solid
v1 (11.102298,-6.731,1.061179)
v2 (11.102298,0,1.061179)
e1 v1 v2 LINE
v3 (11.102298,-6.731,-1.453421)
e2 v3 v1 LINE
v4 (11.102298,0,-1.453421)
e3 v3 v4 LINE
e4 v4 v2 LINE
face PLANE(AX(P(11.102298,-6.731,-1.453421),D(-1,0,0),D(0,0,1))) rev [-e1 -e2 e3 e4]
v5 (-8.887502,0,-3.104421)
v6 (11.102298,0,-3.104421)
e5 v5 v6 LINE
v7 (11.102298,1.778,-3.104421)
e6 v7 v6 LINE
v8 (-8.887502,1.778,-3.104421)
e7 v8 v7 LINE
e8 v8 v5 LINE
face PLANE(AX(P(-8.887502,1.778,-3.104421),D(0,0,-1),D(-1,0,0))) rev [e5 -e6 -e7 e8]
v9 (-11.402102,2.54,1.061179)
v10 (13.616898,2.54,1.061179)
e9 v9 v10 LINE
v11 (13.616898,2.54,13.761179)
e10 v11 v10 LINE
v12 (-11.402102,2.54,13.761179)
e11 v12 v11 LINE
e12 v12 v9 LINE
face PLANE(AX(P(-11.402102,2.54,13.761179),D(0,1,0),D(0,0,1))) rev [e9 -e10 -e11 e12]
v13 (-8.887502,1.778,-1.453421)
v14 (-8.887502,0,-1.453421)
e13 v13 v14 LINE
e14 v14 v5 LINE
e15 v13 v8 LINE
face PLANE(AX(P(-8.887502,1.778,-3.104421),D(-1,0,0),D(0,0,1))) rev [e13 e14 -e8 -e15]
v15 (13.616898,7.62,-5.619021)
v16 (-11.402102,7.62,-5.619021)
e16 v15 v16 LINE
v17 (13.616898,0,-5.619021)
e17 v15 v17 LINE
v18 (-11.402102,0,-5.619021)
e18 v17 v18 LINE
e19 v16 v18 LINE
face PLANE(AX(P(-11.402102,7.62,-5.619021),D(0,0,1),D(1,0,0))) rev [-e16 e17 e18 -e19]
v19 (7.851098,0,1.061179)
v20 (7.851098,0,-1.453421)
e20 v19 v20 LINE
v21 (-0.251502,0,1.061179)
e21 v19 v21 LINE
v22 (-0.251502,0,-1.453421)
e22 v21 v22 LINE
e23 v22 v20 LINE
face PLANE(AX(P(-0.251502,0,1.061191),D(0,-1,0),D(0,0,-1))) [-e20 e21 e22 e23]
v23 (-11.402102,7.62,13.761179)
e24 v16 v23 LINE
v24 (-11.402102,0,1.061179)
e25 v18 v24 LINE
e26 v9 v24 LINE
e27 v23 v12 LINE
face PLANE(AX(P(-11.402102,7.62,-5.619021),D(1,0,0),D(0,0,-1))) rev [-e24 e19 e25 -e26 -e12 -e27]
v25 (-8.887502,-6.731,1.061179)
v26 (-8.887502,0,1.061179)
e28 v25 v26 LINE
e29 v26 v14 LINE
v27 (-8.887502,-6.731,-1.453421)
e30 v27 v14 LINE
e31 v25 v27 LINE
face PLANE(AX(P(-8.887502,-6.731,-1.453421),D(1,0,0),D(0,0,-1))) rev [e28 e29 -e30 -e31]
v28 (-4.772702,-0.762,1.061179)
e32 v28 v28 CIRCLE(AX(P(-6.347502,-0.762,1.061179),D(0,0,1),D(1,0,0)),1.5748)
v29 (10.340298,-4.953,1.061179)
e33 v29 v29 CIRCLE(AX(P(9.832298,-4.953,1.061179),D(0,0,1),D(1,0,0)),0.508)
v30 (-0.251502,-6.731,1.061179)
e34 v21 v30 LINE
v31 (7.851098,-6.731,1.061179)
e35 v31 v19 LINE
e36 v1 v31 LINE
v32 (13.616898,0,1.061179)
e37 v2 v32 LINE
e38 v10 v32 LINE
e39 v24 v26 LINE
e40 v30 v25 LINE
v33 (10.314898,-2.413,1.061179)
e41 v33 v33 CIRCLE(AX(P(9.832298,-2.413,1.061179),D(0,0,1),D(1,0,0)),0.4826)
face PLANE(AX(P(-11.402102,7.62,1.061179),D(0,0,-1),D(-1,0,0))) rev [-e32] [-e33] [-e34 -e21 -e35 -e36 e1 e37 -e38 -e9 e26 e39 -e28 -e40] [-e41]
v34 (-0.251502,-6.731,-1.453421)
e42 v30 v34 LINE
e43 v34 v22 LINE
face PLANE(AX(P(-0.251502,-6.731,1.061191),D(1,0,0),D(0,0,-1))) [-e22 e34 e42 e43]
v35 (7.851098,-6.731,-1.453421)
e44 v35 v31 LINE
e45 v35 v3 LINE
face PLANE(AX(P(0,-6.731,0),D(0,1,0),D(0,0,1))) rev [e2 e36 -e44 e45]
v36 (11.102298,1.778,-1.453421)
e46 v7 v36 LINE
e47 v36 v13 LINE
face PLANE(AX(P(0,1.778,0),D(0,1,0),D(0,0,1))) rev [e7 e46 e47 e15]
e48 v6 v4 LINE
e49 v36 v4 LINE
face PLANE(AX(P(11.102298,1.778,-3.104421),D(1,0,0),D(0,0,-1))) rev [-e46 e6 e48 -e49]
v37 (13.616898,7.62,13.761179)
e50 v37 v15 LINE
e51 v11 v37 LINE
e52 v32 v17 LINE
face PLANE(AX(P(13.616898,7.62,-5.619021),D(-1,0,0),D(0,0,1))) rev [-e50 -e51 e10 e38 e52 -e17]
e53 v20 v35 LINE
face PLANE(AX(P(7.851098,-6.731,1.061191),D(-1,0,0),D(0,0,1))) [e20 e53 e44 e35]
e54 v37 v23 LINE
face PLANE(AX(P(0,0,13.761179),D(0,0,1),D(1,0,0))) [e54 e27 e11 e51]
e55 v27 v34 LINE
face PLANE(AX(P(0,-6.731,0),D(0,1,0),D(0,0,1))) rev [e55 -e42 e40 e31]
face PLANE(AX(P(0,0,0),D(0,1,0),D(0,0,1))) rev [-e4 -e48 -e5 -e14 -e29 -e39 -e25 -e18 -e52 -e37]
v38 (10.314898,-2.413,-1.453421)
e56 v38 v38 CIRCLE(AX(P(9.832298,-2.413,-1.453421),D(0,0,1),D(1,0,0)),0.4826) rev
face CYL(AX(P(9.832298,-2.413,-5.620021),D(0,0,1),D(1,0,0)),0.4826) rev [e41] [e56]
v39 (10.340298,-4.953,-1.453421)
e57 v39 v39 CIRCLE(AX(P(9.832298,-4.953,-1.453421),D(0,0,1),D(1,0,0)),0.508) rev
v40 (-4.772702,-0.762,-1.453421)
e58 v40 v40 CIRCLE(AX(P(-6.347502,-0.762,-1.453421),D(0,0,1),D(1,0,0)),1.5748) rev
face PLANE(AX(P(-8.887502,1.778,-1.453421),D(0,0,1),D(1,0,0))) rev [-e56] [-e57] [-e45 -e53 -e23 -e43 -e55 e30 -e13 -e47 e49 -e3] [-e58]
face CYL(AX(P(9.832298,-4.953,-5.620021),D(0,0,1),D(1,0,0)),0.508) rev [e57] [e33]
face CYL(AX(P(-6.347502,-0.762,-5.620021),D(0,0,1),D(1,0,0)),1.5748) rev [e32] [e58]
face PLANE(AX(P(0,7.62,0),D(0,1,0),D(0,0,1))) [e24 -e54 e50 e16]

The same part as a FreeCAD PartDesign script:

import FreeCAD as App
import Part
import Sketcher
Q = App.Units.Quantity


def add_polygon(sketch, points):
    """Adds a closed chain of lines whose ends are joined by coincident constraints."""
    first, n = sketch.GeometryCount, len(points)
    for a, b in zip(points, points[1:] + points[:1]):
        sketch.addGeometry(Part.LineSegment(App.Vector(*a, 0), App.Vector(*b, 0)), False)
    for i in range(n):
        sketch.addConstraint(Sketcher.Constraint("Coincident", first + i, 2, first + (i + 1) % n, 1))

doc = App.newDocument("Part")
params = doc.addObject("Spreadsheet::Sheet", "Params")
for row, (alias, value) in enumerate([
    ("sketch1_width", "0.985 in"),
    ("sketch1_height", "0.263 in"),
    ("pad1_length", "0.3 in"),
    ("sketch2_width", "0.787 in"),
    ("sketch2_height", "0.065 in"),
    ("pocket1_length", "0.07 in"),
    ("sketch3_width", "0.787 in"),
    ("sketch3_height", "0.099 in"),
    ("pad2_length", "0.265 in"),
    ("sketch4_width", "0.319 in"),
    ("sketch4_height", "0.265 in"),
    ("sketch5_width", "0.319 in"),
    ("sketch5_height", "0.265 in"),
    ("pocket3_length", "17.973785 mm"),
    ("sketch6_diameter", "0.124 in"),
    ("sketch7_diameter", "0.038 in"),
    ("sketch8_diameter", "0.04 in"),
    ("sketch9_height", "0.2 in"),
    ("sketch9_width", "0.985 in"),
    ("pad3_length", "0.5 in"),
], start=1):
    params.set(f"A{row}", alias)
    params.set(f"B{row}", "=" + value)
    params.setAlias(f"B{row}", alias)

body = doc.addObject("PartDesign::Body", "Body")

sketch1 = body.newObject("Sketcher::SketchObject", "Sketch")
sketch1.AttachmentSupport = (doc.getObject("XZ_Plane"), [""])
sketch1.MapMode = "FlatFace"
add_polygon(sketch1, [(-11, -6), (-11, 1), (14, 1), (14, -6)])
sketch1.addConstraint(Sketcher.Constraint("Vertical", 0))
sketch1.addConstraint(Sketcher.Constraint("Horizontal", 1))
sketch1.addConstraint(Sketcher.Constraint("Vertical", 2))
sketch1.addConstraint(Sketcher.Constraint("Horizontal", 3))
sketch1.addConstraint(Sketcher.Constraint("DistanceX", 1, 1, 1, 2, Q("0.985 in")))
sketch1.addConstraint(Sketcher.Constraint("DistanceY", 0, 1, 0, 2, Q("0.263 in")))
sketch1.addConstraint(Sketcher.Constraint("DistanceX", 0, 2, -1, 1, 11.402102))
sketch1.addConstraint(Sketcher.Constraint("DistanceY", -1, 1, 0, 2, 1.061179))
sketch1.setExpression("Constraints[8]", "Params.sketch1_width")
sketch1.setExpression("Constraints[9]", "Params.sketch1_height")
pad1 = body.newObject("PartDesign::Pad", "Pad")
pad1.Profile = sketch1
pad1.setExpression("Length", "Params.pad1_length")
pad1.Reversed = True

sketch2 = body.newObject("Sketcher::SketchObject", "Sketch001")
sketch2.AttachmentSupport = (doc.getObject("XZ_Plane"), [""])
sketch2.MapMode = "FlatFace"
add_polygon(sketch2, [(-8.9, -1.5), (-8.9, -3.1), (11.1, -3.1), (11.1, -1.5)])
sketch2.addConstraint(Sketcher.Constraint("Vertical", 0))
sketch2.addConstraint(Sketcher.Constraint("Horizontal", 1))
sketch2.addConstraint(Sketcher.Constraint("Vertical", 2))
sketch2.addConstraint(Sketcher.Constraint("Horizontal", 3))
sketch2.addConstraint(Sketcher.Constraint("DistanceX", 1, 1, 1, 2, Q("0.787 in")))
sketch2.addConstraint(Sketcher.Constraint("DistanceY", 0, 2, 0, 1, Q("0.065 in")))
sketch2.addConstraint(Sketcher.Constraint("DistanceX", 0, 2, -1, 1, 8.887502))
sketch2.addConstraint(Sketcher.Constraint("DistanceY", 0, 2, -1, 1, 3.104421))
sketch2.setExpression("Constraints[8]", "Params.sketch2_width")
sketch2.setExpression("Constraints[9]", "Params.sketch2_height")
pocket1 = body.newObject("PartDesign::Pocket", "Pocket")
pocket1.Profile = sketch2
pocket1.setExpression("Length", "Params.pocket1_length")

sketch3 = body.newObject("Sketcher::SketchObject", "Sketch002")
sketch3.AttachmentSupport = (doc.getObject("XZ_Plane"), [""])
sketch3.MapMode = "FlatFace"
add_polygon(sketch3, [(-8.9, 1.1), (-8.9, -1.5), (11.1, -1.5), (11.1, 1.1)])
sketch3.addConstraint(Sketcher.Constraint("Vertical", 0))
sketch3.addConstraint(Sketcher.Constraint("Horizontal", 1))
sketch3.addConstraint(Sketcher.Constraint("Vertical", 2))
sketch3.addConstraint(Sketcher.Constraint("Horizontal", 3))
sketch3.addConstraint(Sketcher.Constraint("DistanceX", 1, 1, 1, 2, Q("0.787 in")))
sketch3.addConstraint(Sketcher.Constraint("DistanceY", 0, 2, 0, 1, Q("0.099 in")))
sketch3.addConstraint(Sketcher.Constraint("DistanceX", 0, 2, -1, 1, 8.887502))
sketch3.addConstraint(Sketcher.Constraint("DistanceY", 0, 2, -1, 1, 1.453421))
sketch3.setExpression("Constraints[8]", "Params.sketch3_width")
sketch3.setExpression("Constraints[9]", "Params.sketch3_height")
pad2 = body.newObject("PartDesign::Pad", "Pad001")
pad2.Profile = sketch3
pad2.setExpression("Length", "Params.pad2_length")

sketch4 = body.newObject("Sketcher::SketchObject", "Sketch003")
sketch4.AttachmentSupport = (doc.getObject("XY_Plane"), [""])
sketch4.MapMode = "FlatFace"
sketch4.AttachmentOffset = App.Placement(App.Vector(0, 0, 1.061179), App.Rotation())
add_polygon(sketch4, [(0, 0), (0, -7), (8, -7), (8, 0)])
sketch4.addConstraint(Sketcher.Constraint("Vertical", 0))
sketch4.addConstraint(Sketcher.Constraint("Horizontal", 1))
sketch4.addConstraint(Sketcher.Constraint("Vertical", 2))
sketch4.addConstraint(Sketcher.Constraint("Horizontal", 3))
sketch4.addConstraint(Sketcher.Constraint("PointOnObject", 2, 2, -1))
sketch4.addConstraint(Sketcher.Constraint("DistanceX", 1, 1, 1, 2, Q("0.319 in")))
sketch4.addConstraint(Sketcher.Constraint("DistanceY", 0, 2, 0, 1, Q("0.265 in")))
sketch4.addConstraint(Sketcher.Constraint("DistanceX", 0, 2, -1, 1, 0.251502))
sketch4.setExpression("Constraints[9]", "Params.sketch4_width")
sketch4.setExpression("Constraints[10]", "Params.sketch4_height")
pocket2 = body.newObject("PartDesign::Pocket", "Pocket001")
pocket2.Profile = sketch4
pocket2.Type = "UpToFirst"

sketch5 = body.newObject("Sketcher::SketchObject", "Sketch004")
sketch5.AttachmentSupport = (doc.getObject("XY_Plane"), [""])
sketch5.MapMode = "FlatFace"
sketch5.AttachmentOffset = App.Placement(App.Vector(0, 0, 1.061179), App.Rotation())
add_polygon(sketch5, [(0, 0), (0, -7), (8, -7), (8, 0)])
sketch5.addConstraint(Sketcher.Constraint("Vertical", 0))
sketch5.addConstraint(Sketcher.Constraint("Horizontal", 1))
sketch5.addConstraint(Sketcher.Constraint("Vertical", 2))
sketch5.addConstraint(Sketcher.Constraint("Horizontal", 3))
sketch5.addConstraint(Sketcher.Constraint("PointOnObject", 2, 2, -1))
sketch5.addConstraint(Sketcher.Constraint("DistanceX", 1, 1, 1, 2, Q("0.319 in")))
sketch5.addConstraint(Sketcher.Constraint("DistanceY", 0, 2, 0, 1, Q("0.265 in")))
sketch5.addConstraint(Sketcher.Constraint("DistanceX", 0, 2, -1, 1, 0.251502))
sketch5.setExpression("Constraints[9]", "Params.sketch5_width")
sketch5.setExpression("Constraints[10]", "Params.sketch5_height")
pocket3 = body.newObject("PartDesign::Pocket", "Pocket002")
pocket3.Profile = sketch5
pocket3.setExpression("Length", "Params.pocket3_length")
pocket3.Reversed = True

sketch6 = body.newObject("Sketcher::SketchObject", "Sketch005")
sketch6.AttachmentSupport = (doc.getObject("XY_Plane"), [""])
sketch6.MapMode = "FlatFace"
sketch6.AttachmentOffset = App.Placement(App.Vector(0, 0, 1.061179), App.Rotation())
sketch6.addGeometry(Part.Circle(App.Vector(-6.3, -0.8, 0), App.Vector(0, 0, 1), 1.6), False)
sketch6.addConstraint(Sketcher.Constraint("Diameter", 0, Q("0.124 in")))
sketch6.addConstraint(Sketcher.Constraint("DistanceY", 0, 3, -1, 1, Q("0.03 in")))
sketch6.addConstraint(Sketcher.Constraint("DistanceX", 0, 3, -1, 1, 6.347502))
sketch6.setExpression("Constraints[0]", "Params.sketch6_diameter")
pocket4 = body.newObject("PartDesign::Pocket", "Pocket003")
pocket4.Profile = sketch6
pocket4.Type = "UpToFirst"

sketch7 = body.newObject("Sketcher::SketchObject", "Sketch006")
sketch7.AttachmentSupport = (doc.getObject("XY_Plane"), [""])
sketch7.MapMode = "FlatFace"
sketch7.AttachmentOffset = App.Placement(App.Vector(0, 0, 1.061179), App.Rotation())
sketch7.addGeometry(Part.Circle(App.Vector(9.83, -2.41, 0), App.Vector(0, 0, 1), 0.48), False)
sketch7.addConstraint(Sketcher.Constraint("Diameter", 0, Q("0.038 in")))
sketch7.addConstraint(Sketcher.Constraint("DistanceY", 0, 3, -1, 1, Q("0.095 in")))
sketch7.addConstraint(Sketcher.Constraint("DistanceX", -1, 1, 0, 3, 9.832298))
sketch7.setExpression("Constraints[0]", "Params.sketch7_diameter")
pocket5 = body.newObject("PartDesign::Pocket", "Pocket004")
pocket5.Profile = sketch7
pocket5.Type = "UpToFirst"

sketch8 = body.newObject("Sketcher::SketchObject", "Sketch007")
sketch8.AttachmentSupport = (doc.getObject("XY_Plane"), [""])
sketch8.MapMode = "FlatFace"
sketch8.AttachmentOffset = App.Placement(App.Vector(0, 0, 1.061179), App.Rotation())
sketch8.addGeometry(Part.Circle(App.Vector(9.8, -5, 0), App.Vector(0, 0, 1), 0.5), False)
sketch8.addConstraint(Sketcher.Constraint("Diameter", 0, Q("0.04 in")))
sketch8.addConstraint(Sketcher.Constraint("DistanceY", 0, 3, -1, 1, Q("0.195 in")))
sketch8.addConstraint(Sketcher.Constraint("DistanceX", -1, 1, 0, 3, 9.832298))
sketch8.setExpression("Constraints[0]", "Params.sketch8_diameter")
pocket6 = body.newObject("PartDesign::Pocket", "Pocket005")
pocket6.Profile = sketch8
pocket6.Type = "UpToFirst"

sketch9 = body.newObject("Sketcher::SketchObject", "Sketch008")
sketch9.AttachmentSupport = (doc.getObject("XY_Plane"), [""])
sketch9.MapMode = "FlatFace"
sketch9.AttachmentOffset = App.Placement(App.Vector(0, 0, 1.061179), App.Rotation())
add_polygon(sketch9, [(-11, 8), (-11, 3), (14, 3), (14, 8)])
sketch9.addConstraint(Sketcher.Constraint("Vertical", 0))
sketch9.addConstraint(Sketcher.Constraint("Horizontal", 1))
sketch9.addConstraint(Sketcher.Constraint("Vertical", 2))
sketch9.addConstraint(Sketcher.Constraint("Horizontal", 3))
sketch9.addConstraint(Sketcher.Constraint("DistanceY", 0, 2, 0, 1, Q("0.2 in")))
sketch9.addConstraint(Sketcher.Constraint("DistanceY", -1, 1, 0, 2, Q("0.1 in")))
sketch9.addConstraint(Sketcher.Constraint("DistanceX", 1, 1, 1, 2, Q("0.985 in")))
sketch9.addConstraint(Sketcher.Constraint("DistanceX", 0, 2, -1, 1, 11.402102))
sketch9.setExpression("Constraints[8]", "Params.sketch9_height")
sketch9.setExpression("Constraints[10]", "Params.sketch9_width")
pad3 = body.newObject("PartDesign::Pad", "Pad002")
pad3.Profile = sketch9
pad3.setExpression("Length", "Params.pad3_length")

doc.recompute()
